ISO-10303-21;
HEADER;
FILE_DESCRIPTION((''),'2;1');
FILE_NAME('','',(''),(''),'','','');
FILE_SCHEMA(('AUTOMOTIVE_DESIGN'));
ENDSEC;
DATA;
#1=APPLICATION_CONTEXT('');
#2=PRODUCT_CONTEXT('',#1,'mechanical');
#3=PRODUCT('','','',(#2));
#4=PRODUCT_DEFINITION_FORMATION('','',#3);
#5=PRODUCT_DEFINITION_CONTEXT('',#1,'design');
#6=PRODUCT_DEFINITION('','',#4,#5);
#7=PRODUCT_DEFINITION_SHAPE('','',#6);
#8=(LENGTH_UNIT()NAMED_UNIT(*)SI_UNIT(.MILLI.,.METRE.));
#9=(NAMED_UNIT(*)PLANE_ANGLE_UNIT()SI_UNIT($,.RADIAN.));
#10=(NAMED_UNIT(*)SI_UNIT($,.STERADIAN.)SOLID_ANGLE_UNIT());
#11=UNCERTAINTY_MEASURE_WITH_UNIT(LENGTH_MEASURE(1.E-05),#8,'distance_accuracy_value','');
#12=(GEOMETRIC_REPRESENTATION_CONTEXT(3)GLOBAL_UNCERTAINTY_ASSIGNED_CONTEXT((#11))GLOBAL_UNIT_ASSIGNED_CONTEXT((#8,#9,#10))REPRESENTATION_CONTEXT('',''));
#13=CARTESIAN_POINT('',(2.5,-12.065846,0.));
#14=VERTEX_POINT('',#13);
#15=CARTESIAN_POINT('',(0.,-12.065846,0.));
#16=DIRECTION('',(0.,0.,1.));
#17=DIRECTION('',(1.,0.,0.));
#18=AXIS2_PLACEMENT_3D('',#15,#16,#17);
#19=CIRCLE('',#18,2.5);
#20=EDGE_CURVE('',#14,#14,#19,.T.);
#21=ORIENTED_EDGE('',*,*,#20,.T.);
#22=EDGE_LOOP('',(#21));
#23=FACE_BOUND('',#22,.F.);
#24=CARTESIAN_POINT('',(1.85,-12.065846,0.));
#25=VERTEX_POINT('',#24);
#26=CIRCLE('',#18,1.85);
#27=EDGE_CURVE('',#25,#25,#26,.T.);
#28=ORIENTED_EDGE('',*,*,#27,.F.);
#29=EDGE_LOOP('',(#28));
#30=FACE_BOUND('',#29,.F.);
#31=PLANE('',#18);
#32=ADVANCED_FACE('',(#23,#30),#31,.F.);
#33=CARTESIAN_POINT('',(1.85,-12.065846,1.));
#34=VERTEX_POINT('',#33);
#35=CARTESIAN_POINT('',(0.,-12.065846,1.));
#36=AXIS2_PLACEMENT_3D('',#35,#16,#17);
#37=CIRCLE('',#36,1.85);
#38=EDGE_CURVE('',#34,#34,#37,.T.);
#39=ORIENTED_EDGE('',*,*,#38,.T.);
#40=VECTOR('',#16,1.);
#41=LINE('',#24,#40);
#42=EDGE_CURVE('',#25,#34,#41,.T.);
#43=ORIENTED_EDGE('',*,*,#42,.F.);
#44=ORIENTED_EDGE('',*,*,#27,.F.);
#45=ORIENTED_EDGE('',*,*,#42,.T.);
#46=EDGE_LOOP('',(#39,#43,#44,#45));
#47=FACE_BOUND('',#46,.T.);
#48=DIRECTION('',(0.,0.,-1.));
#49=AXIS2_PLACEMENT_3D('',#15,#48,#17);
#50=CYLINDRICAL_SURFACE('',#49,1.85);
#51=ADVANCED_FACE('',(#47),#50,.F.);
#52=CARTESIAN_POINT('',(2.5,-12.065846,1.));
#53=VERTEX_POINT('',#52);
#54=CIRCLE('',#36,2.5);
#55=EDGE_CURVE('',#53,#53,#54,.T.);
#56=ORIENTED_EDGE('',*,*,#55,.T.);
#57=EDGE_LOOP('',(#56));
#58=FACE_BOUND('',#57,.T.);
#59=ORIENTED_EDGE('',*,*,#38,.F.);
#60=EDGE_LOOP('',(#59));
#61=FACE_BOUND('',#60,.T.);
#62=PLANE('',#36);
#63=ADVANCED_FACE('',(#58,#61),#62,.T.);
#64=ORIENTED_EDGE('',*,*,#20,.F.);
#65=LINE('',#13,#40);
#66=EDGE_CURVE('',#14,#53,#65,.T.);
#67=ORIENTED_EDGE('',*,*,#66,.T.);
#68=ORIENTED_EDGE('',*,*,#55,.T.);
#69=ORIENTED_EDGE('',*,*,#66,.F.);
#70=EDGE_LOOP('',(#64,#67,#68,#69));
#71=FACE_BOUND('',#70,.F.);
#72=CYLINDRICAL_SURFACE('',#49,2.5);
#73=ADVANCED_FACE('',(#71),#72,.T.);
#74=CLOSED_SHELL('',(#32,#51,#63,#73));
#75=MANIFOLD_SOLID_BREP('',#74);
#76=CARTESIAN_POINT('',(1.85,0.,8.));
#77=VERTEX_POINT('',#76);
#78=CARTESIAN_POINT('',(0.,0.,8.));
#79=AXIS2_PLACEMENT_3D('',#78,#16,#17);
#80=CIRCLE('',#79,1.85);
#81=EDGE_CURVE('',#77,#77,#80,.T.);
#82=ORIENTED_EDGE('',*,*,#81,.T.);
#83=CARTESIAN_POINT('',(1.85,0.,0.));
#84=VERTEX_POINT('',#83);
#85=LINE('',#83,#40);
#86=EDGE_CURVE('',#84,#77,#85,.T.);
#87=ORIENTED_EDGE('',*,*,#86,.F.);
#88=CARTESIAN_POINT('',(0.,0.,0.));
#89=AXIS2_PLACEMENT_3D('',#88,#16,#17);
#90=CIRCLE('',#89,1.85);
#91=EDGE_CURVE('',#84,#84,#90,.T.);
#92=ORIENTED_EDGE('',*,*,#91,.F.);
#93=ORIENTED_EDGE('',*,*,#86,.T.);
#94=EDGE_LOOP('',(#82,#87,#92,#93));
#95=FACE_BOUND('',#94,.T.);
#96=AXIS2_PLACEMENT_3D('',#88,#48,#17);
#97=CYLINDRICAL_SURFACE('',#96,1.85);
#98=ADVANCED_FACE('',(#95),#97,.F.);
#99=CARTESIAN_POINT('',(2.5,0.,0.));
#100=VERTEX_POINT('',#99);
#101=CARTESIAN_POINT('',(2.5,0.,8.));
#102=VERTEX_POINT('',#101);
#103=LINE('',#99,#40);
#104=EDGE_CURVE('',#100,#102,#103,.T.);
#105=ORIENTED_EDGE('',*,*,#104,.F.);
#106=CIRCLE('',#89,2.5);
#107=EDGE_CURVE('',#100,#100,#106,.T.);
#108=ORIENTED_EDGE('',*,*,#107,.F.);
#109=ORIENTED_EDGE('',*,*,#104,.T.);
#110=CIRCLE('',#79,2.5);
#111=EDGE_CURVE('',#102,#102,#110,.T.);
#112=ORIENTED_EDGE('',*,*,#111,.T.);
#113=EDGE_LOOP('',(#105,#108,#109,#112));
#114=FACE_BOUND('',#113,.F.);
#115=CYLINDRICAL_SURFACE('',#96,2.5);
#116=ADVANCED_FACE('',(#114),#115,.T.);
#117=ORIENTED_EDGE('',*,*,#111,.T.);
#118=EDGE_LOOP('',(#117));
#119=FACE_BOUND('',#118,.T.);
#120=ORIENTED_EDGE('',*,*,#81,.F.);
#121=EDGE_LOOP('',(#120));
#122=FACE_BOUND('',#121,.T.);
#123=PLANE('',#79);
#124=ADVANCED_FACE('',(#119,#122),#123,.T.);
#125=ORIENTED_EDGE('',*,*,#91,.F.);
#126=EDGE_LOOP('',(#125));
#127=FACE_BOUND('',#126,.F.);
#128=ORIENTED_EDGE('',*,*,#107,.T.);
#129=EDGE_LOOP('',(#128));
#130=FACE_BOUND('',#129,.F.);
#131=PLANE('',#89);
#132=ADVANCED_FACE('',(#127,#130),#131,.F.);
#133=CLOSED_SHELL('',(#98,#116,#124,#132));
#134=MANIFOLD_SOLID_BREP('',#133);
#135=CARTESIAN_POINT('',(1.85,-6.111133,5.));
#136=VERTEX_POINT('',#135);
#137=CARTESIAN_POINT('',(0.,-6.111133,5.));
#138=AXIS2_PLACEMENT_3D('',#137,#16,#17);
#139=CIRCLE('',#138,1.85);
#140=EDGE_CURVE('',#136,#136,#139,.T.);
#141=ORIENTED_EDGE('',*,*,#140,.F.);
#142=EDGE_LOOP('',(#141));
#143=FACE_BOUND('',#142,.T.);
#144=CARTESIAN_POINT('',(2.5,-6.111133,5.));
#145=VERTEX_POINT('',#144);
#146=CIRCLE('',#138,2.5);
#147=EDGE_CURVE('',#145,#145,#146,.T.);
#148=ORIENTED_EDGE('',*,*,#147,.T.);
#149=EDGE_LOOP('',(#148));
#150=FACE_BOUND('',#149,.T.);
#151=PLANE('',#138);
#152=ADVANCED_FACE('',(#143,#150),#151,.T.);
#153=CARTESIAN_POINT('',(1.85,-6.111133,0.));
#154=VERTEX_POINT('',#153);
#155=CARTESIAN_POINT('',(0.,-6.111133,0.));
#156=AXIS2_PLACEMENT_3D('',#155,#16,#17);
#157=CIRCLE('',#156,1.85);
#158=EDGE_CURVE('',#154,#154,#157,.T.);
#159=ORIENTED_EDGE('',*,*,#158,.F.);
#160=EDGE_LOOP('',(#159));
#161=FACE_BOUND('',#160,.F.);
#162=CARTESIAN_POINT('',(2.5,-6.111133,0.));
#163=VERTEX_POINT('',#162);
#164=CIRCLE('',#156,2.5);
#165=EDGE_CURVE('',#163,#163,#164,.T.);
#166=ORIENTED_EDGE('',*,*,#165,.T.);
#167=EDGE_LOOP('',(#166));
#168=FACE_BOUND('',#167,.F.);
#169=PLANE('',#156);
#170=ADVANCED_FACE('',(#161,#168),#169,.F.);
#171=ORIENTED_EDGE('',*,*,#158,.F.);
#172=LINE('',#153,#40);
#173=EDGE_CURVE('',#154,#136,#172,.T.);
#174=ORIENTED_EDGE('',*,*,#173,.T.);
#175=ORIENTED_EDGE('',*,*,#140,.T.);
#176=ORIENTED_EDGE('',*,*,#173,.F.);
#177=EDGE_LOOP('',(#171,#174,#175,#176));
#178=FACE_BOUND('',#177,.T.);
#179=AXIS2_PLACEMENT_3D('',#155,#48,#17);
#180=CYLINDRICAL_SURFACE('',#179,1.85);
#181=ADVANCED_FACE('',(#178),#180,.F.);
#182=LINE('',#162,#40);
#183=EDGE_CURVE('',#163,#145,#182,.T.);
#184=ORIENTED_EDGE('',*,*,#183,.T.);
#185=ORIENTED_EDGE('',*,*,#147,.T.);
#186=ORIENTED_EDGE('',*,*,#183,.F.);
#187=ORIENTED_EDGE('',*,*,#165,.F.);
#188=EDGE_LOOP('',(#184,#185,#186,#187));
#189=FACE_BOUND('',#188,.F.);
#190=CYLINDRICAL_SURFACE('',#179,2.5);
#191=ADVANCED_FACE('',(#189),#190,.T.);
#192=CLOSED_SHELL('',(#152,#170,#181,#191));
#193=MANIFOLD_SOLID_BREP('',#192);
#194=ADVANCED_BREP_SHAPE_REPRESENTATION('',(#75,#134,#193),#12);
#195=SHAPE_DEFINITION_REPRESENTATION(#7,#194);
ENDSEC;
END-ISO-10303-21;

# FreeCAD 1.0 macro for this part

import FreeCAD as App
import Part
import Sketcher

V = App.Vector

doc = App.newDocument("Part")
params = doc.addObject("Spreadsheet::Sheet", "Params")
for row, (alias, value) in enumerate([
    ("sketch1_diameter", "5 mm"),
    ("sketch1_diameter2", "3.7 mm"),
    ("pad1_length", "8 mm"),
    ("sketch2_diameter", "5 mm"),
    ("sketch2_diameter2", "3.7 mm"),
    ("pad2_length", "5 mm"),
    ("sketch3_diameter", "5 mm"),
    ("sketch3_diameter2", "3.7 mm"),
    ("pad3_length", "1 mm"),
], start=1):
    params.set(f"A{row}", alias)
    params.set(f"B{row}", "=" + value)
    params.setAlias(f"B{row}", alias)

body = doc.addObject("PartDesign::Body", "Body")

sketch1 = body.newObject("Sketcher::SketchObject", "Sketch")
sketch1.AttachmentSupport = (doc.getObject("XY_Plane"), [""])
sketch1.MapMode = "FlatFace"
sketch1.addGeometry(Part.Circle(V(0, 0, 0), V(0, 0, 1), 2.5), False)
sketch1.addGeometry(Part.Circle(V(0, 0, 0), V(0, 0, 1), 1.9), False)
sketch1.addConstraint(Sketcher.Constraint("Coincident", 0, 3, -1, 1))
sketch1.addConstraint(Sketcher.Constraint("Coincident", 1, 3, -1, 1))
sketch1.addConstraint(Sketcher.Constraint("Diameter", 0, 5.0))
sketch1.addConstraint(Sketcher.Constraint("Diameter", 1, 3.7))
sketch1.setExpression("Constraints[2]", "Params.sketch1_diameter")
sketch1.setExpression("Constraints[3]", "Params.sketch1_diameter2")
pad1 = body.newObject("PartDesign::Pad", "Pad")
pad1.Profile = sketch1
pad1.setExpression("Length", "Params.pad1_length")
body2 = doc.addObject("PartDesign::Body", "Body001")

sketch2 = body2.newObject("Sketcher::SketchObject", "Sketch001")
sketch2.AttachmentSupport = (doc.getObject("XY_Plane001"), [""])
sketch2.MapMode = "FlatFace"
sketch2.addGeometry(Part.Circle(V(0, -6.1, 0), V(0, 0, 1), 2.5), False)
sketch2.addGeometry(Part.Circle(V(0, -6.1, 0), V(0, 0, 1), 1.9), False)
sketch2.addConstraint(Sketcher.Constraint("Coincident", 1, 3, 0, 3))
sketch2.addConstraint(Sketcher.Constraint("PointOnObject", 0, 3, -2))
sketch2.addConstraint(Sketcher.Constraint("Diameter", 0, 5.0))
sketch2.addConstraint(Sketcher.Constraint("Diameter", 1, 3.7))
sketch2.addConstraint(Sketcher.Constraint("DistanceY", 0, 3, -1, 1, 6.111133))
sketch2.setExpression("Constraints[2]", "Params.sketch2_diameter")
sketch2.setExpression("Constraints[3]", "Params.sketch2_diameter2")
pad2 = body2.newObject("PartDesign::Pad", "Pad001")
pad2.Profile = sketch2
pad2.setExpression("Length", "Params.pad2_length")
body3 = doc.addObject("PartDesign::Body", "Body002")

sketch3 = body3.newObject("Sketcher::SketchObject", "Sketch002")
sketch3.AttachmentSupport = (doc.getObject("XY_Plane002"), [""])
sketch3.MapMode = "FlatFace"
sketch3.addGeometry(Part.Circle(V(0, -12.1, 0), V(0, 0, 1), 2.5), False)
sketch3.addGeometry(Part.Circle(V(0, -12.1, 0), V(0, 0, 1), 1.9), False)
sketch3.addConstraint(Sketcher.Constraint("Coincident", 1, 3, 0, 3))
sketch3.addConstraint(Sketcher.Constraint("PointOnObject", 0, 3, -2))
sketch3.addConstraint(Sketcher.Constraint("Diameter", 0, 5.0))
sketch3.addConstraint(Sketcher.Constraint("Diameter", 1, 3.7))
sketch3.addConstraint(Sketcher.Constraint("DistanceY", 0, 3, -1, 1, 12.065846))
sketch3.setExpression("Constraints[2]", "Params.sketch3_diameter")
sketch3.setExpression("Constraints[3]", "Params.sketch3_diameter2")
pad3 = body3.newObject("PartDesign::Pad", "Pad002")
pad3.Profile = sketch3
pad3.setExpression("Length", "Params.pad3_length")

doc.recompute()
